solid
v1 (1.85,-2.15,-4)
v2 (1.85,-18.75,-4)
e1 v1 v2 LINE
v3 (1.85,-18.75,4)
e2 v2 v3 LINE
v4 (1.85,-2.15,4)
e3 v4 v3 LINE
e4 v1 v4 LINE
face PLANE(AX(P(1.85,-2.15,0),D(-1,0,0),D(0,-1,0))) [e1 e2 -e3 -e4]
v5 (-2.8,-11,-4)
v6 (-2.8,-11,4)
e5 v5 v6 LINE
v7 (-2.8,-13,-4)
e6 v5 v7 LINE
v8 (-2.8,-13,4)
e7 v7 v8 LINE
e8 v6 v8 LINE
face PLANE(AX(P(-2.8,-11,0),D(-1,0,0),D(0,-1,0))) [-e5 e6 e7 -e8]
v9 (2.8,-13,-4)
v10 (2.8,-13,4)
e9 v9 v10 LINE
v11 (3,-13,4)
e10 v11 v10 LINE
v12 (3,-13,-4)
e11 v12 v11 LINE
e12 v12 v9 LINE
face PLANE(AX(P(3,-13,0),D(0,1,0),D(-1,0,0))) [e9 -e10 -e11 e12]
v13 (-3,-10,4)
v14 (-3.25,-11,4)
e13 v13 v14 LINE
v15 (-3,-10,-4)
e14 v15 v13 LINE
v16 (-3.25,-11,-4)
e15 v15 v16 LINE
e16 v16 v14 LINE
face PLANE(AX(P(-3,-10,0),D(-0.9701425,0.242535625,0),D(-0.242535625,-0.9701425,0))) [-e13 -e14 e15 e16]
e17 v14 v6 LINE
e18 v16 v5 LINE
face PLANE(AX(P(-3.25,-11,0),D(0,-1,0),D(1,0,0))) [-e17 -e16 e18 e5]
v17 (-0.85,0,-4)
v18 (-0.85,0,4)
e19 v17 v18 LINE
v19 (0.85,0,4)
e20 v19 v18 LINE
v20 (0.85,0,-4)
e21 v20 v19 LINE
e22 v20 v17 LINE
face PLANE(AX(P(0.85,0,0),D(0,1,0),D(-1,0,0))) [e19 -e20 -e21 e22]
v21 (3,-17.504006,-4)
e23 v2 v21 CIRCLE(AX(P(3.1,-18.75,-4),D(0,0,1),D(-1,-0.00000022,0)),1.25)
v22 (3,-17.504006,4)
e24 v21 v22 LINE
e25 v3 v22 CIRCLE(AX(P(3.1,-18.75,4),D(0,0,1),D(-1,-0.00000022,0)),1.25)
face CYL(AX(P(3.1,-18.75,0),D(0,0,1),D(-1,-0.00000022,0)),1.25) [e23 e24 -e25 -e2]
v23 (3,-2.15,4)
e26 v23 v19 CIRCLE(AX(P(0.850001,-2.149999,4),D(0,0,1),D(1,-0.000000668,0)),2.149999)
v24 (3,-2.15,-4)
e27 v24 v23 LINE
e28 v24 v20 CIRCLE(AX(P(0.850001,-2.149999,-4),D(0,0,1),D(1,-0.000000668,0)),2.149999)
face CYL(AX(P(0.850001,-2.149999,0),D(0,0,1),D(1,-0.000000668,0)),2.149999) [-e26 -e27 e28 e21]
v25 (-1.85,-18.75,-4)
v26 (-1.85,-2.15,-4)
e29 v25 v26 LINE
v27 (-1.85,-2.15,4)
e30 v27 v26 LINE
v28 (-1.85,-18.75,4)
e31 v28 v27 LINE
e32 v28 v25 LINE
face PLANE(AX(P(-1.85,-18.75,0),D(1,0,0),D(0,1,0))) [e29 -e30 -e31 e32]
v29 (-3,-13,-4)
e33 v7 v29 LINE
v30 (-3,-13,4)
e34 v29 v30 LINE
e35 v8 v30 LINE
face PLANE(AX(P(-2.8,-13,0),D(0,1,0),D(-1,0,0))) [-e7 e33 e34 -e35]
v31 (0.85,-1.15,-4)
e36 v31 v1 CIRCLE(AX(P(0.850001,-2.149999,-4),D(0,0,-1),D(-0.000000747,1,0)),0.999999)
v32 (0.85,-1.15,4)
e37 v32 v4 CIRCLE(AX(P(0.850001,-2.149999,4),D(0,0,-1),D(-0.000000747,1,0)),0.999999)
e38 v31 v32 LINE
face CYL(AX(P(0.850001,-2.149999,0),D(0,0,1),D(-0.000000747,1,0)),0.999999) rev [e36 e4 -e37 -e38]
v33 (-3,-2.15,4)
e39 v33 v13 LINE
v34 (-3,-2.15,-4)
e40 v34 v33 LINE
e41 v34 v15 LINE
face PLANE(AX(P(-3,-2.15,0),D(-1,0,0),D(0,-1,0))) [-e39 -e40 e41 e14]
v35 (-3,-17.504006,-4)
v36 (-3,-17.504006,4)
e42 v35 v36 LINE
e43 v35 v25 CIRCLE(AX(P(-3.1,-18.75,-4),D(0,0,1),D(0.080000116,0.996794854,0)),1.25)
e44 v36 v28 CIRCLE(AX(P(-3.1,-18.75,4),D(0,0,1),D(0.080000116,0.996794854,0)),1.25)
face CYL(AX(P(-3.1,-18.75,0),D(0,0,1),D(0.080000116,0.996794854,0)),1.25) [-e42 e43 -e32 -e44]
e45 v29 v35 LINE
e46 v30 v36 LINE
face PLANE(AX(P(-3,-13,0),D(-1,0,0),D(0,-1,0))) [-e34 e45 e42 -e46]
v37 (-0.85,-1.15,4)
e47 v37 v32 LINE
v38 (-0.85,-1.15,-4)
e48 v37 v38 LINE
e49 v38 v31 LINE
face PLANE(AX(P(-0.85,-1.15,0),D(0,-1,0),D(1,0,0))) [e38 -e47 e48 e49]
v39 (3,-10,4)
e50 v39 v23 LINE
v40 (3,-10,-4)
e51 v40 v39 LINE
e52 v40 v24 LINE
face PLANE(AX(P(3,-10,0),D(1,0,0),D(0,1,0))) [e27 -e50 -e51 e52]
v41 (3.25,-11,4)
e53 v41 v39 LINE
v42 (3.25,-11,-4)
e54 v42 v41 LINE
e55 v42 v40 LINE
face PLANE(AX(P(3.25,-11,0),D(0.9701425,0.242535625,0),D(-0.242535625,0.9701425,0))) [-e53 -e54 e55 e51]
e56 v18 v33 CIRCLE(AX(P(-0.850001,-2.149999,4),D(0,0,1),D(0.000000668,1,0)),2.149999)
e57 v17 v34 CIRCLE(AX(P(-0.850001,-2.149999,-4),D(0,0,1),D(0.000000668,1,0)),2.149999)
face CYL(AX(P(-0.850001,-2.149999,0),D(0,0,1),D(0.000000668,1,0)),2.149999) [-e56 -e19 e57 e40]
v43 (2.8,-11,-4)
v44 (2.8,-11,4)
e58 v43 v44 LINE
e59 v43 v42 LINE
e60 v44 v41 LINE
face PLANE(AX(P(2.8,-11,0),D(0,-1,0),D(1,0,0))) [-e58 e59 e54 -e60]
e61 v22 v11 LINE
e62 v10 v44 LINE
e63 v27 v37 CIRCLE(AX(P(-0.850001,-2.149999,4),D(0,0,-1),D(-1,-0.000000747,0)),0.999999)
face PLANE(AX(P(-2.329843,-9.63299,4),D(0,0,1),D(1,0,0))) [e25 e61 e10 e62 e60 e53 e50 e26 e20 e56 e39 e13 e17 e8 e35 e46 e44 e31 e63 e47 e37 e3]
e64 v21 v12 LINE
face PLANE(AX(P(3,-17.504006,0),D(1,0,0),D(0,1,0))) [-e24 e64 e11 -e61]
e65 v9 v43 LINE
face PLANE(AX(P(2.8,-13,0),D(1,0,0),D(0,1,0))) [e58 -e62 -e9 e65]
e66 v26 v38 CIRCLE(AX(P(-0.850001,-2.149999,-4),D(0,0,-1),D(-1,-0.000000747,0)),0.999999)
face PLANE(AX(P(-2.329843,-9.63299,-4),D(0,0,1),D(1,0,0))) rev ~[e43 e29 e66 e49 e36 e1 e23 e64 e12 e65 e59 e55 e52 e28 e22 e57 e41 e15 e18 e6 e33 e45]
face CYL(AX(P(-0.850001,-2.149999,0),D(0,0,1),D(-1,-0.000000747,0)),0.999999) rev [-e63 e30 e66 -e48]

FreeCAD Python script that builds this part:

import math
import FreeCAD as App
import Part
import Sketcher

doc = App.newDocument("Part")
body = doc.addObject("PartDesign::Body", "Body")

# Sketch on XY plane
sketch1 = body.newObject("Sketcher::SketchObject", "Sketch")
sketch1.AttachmentSupport = (doc.getObject("XY_Plane"), [""])
sketch1.MapMode = "FlatFace"
sketch1.addGeometry(Part.LineSegment(App.Vector(-0.85, -1.15, 0), App.Vector(0.85, -1.15, 0)), False)
sketch1.addGeometry(Part.ArcOfCircle(Part.Circle(App.Vector(0.85, -2.15, 0), App.Vector(0, 0, 1), 1), math.radians(0), math.radians(90)), False)
sketch1.addGeometry(Part.LineSegment(App.Vector(1.85, -2.15, 0), App.Vector(1.85, -18.75, 0)), False)
sketch1.addGeometry(Part.ArcOfCircle(Part.Circle(App.Vector(3.1, -18.75, 0), App.Vector(0, 0, 1), 1.25), math.radians(-180), math.radians(95)), False)
sketch1.addGeometry(Part.LineSegment(App.Vector(3, -17.5, 0), App.Vector(3, -13, 0)), False)
sketch1.addGeometry(Part.LineSegment(App.Vector(3, -13, 0), App.Vector(2.8, -13, 0)), False)
sketch1.addGeometry(Part.LineSegment(App.Vector(2.8, -13, 0), App.Vector(2.8, -11, 0)), False)
sketch1.addGeometry(Part.LineSegment(App.Vector(2.8, -11, 0), App.Vector(3.25, -11, 0)), False)
sketch1.addGeometry(Part.LineSegment(App.Vector(3.25, -11, 0), App.Vector(3, -10, 0)), False)
sketch1.addGeometry(Part.LineSegment(App.Vector(3, -10, 0), App.Vector(3, -2.15, 0)), False)
sketch1.addGeometry(Part.ArcOfCircle(Part.Circle(App.Vector(0.85, -2.15, 0), App.Vector(0, 0, 1), 2.15), math.radians(0), math.radians(90)), False)
sketch1.addGeometry(Part.LineSegment(App.Vector(0.85, 0, 0), App.Vector(-0.85, 0, 0)), False)
sketch1.addGeometry(Part.ArcOfCircle(Part.Circle(App.Vector(-0.85, -2.15, 0), App.Vector(0, 0, 1), 2.15), math.radians(90), math.radians(180)), False)
sketch1.addGeometry(Part.LineSegment(App.Vector(-3, -2.15, 0), App.Vector(-3, -10, 0)), False)
sketch1.addGeometry(Part.LineSegment(App.Vector(-3, -10, 0), App.Vector(-3.25, -11, 0)), False)
sketch1.addGeometry(Part.LineSegment(App.Vector(-3.25, -11, 0), App.Vector(-2.8, -11, 0)), False)
sketch1.addGeometry(Part.LineSegment(App.Vector(-2.8, -11, 0), App.Vector(-2.8, -13, 0)), False)
sketch1.addGeometry(Part.LineSegment(App.Vector(-2.8, -13, 0), App.Vector(-3, -13, 0)), False)
sketch1.addGeometry(Part.LineSegment(App.Vector(-3, -13, 0), App.Vector(-3, -17.5, 0)), False)
sketch1.addGeometry(Part.ArcOfCircle(Part.Circle(App.Vector(-3.1, -18.75, 0), App.Vector(0, 0, 1), 1.25), math.radians(85), math.radians(360)), False)
sketch1.addGeometry(Part.LineSegment(App.Vector(-1.85, -18.75, 0), App.Vector(-1.85, -2.15, 0)), False)
sketch1.addGeometry(Part.ArcOfCircle(Part.Circle(App.Vector(-0.85, -2.15, 0), App.Vector(0, 0, 1), 1), math.radians(90), math.radians(180)), False)
sketch1.addConstraint(Sketcher.Constraint("Tangent", 0, 2, 1, 2))
sketch1.addConstraint(Sketcher.Constraint("Tangent", 1, 1, 2, 1))
sketch1.addConstraint(Sketcher.Constraint("Tangent", 2, 2, 3, 1))
sketch1.addConstraint(Sketcher.Constraint("Coincident", 3, 2, 4, 1))
sketch1.addConstraint(Sketcher.Constraint("Coincident", 4, 2, 5, 1))
sketch1.addConstraint(Sketcher.Constraint("Coincident", 5, 2, 6, 1))
sketch1.addConstraint(Sketcher.Constraint("Coincident", 6, 2, 7, 1))
sketch1.addConstraint(Sketcher.Constraint("Coincident", 7, 2, 8, 1))
sketch1.addConstraint(Sketcher.Constraint("Coincident", 8, 2, 9, 1))
sketch1.addConstraint(Sketcher.Constraint("Tangent", 9, 2, 10, 1))
sketch1.addConstraint(Sketcher.Constraint("Tangent", 10, 2, 11, 1))
sketch1.addConstraint(Sketcher.Constraint("Tangent", 11, 2, 12, 1))
sketch1.addConstraint(Sketcher.Constraint("Tangent", 12, 2, 13, 1))
sketch1.addConstraint(Sketcher.Constraint("Coincident", 13, 2, 14, 1))
sketch1.addConstraint(Sketcher.Constraint("Coincident", 14, 2, 15, 1))
sketch1.addConstraint(Sketcher.Constraint("Coincident", 15, 2, 16, 1))
sketch1.addConstraint(Sketcher.Constraint("Coincident", 16, 2, 17, 1))
sketch1.addConstraint(Sketcher.Constraint("Coincident", 17, 2, 18, 1))
sketch1.addConstraint(Sketcher.Constraint("Coincident", 18, 2, 19, 1))
sketch1.addConstraint(Sketcher.Constraint("Tangent", 19, 2, 20, 1))
sketch1.addConstraint(Sketcher.Constraint("Tangent", 20, 2, 21, 2))
sketch1.addConstraint(Sketcher.Constraint("Tangent", 21, 1, 0, 1))
sketch1.addConstraint(Sketcher.Constraint("Horizontal", 0))
sketch1.addConstraint(Sketcher.Constraint("Vertical", 2))
sketch1.addConstraint(Sketcher.Constraint("Vertical", 4))
sketch1.addConstraint(Sketcher.Constraint("Horizontal", 5))
sketch1.addConstraint(Sketcher.Constraint("Vertical", 6))
sketch1.addConstraint(Sketcher.Constraint("Horizontal", 7))
sketch1.addConstraint(Sketcher.Constraint("Vertical", 9))
sketch1.addConstraint(Sketcher.Constraint("Horizontal", 11))
sketch1.addConstraint(Sketcher.Constraint("Vertical", 13))
sketch1.addConstraint(Sketcher.Constraint("Horizontal", 15))
sketch1.addConstraint(Sketcher.Constraint("Vertical", 16))
sketch1.addConstraint(Sketcher.Constraint("Horizontal", 17))
sketch1.addConstraint(Sketcher.Constraint("Vertical", 18))
sketch1.addConstraint(Sketcher.Constraint("Vertical", 20))
sketch1.addConstraint(Sketcher.Constraint("Coincident", 10, 3, 1, 3))
sketch1.addConstraint(Sketcher.Constraint("Coincident", 21, 3, 12, 3))
sketch1.addConstraint(Sketcher.Constraint("Equal", 10, 12))
sketch1.addConstraint(Sketcher.Constraint("Equal", 3, 19))
sketch1.addConstraint(Sketcher.Constraint("Symmetric", 10, 2, 11, 2, -1, 1))
sketch1.addConstraint(Sketcher.Constraint("Symmetric", 7, 2, 14, 2, -2))
sketch1.addConstraint(Sketcher.Constraint("Symmetric", 5, 2, 16, 2, -2))
sketch1.addConstraint(Sketcher.Constraint("Symmetric", 3, 2, 18, 2, -2))
sketch1.addConstraint(Sketcher.Constraint("Horizontal", 8, 2, 13, 2))
sketch1.addConstraint(Sketcher.Constraint("Vertical", 4, 2, 8, 2))
sketch1.addConstraint(Sketcher.Constraint("Radius", 1, 0.999999))
sketch1.addConstraint(Sketcher.Constraint("DistanceY", 6, 1, 6, 2, 2.0))
sketch1.addConstraint(Sketcher.Constraint("Radius", 3, 1.25))
sketch1.addConstraint(Sketcher.Constraint("Radius", 10, 2.149999))
sketch1.addConstraint(Sketcher.Constraint("DistanceX", 0, 1, 0, 2, 1.7))
sketch1.addConstraint(Sketcher.Constraint("DistanceX", 5, 2, 5, 1, 0.2))
sketch1.addConstraint(Sketcher.Constraint("DistanceY", 2, 2, 2, 1, 16.6))
sketch1.addConstraint(Sketcher.Constraint("DistanceY", 4, 2, -1, 1, 13.0))
sketch1.addConstraint(Sketcher.Constraint("DistanceY", 8, 2, -1, 1, 10.0))
sketch1.addConstraint(Sketcher.Constraint("DistanceX", 7, 1, 7, 2, 0.45))
pad1 = body.newObject("PartDesign::Pad", "Pad")
pad1.Profile = sketch1
pad1.Length = 8
pad1.Midplane = True

doc.recompute()
